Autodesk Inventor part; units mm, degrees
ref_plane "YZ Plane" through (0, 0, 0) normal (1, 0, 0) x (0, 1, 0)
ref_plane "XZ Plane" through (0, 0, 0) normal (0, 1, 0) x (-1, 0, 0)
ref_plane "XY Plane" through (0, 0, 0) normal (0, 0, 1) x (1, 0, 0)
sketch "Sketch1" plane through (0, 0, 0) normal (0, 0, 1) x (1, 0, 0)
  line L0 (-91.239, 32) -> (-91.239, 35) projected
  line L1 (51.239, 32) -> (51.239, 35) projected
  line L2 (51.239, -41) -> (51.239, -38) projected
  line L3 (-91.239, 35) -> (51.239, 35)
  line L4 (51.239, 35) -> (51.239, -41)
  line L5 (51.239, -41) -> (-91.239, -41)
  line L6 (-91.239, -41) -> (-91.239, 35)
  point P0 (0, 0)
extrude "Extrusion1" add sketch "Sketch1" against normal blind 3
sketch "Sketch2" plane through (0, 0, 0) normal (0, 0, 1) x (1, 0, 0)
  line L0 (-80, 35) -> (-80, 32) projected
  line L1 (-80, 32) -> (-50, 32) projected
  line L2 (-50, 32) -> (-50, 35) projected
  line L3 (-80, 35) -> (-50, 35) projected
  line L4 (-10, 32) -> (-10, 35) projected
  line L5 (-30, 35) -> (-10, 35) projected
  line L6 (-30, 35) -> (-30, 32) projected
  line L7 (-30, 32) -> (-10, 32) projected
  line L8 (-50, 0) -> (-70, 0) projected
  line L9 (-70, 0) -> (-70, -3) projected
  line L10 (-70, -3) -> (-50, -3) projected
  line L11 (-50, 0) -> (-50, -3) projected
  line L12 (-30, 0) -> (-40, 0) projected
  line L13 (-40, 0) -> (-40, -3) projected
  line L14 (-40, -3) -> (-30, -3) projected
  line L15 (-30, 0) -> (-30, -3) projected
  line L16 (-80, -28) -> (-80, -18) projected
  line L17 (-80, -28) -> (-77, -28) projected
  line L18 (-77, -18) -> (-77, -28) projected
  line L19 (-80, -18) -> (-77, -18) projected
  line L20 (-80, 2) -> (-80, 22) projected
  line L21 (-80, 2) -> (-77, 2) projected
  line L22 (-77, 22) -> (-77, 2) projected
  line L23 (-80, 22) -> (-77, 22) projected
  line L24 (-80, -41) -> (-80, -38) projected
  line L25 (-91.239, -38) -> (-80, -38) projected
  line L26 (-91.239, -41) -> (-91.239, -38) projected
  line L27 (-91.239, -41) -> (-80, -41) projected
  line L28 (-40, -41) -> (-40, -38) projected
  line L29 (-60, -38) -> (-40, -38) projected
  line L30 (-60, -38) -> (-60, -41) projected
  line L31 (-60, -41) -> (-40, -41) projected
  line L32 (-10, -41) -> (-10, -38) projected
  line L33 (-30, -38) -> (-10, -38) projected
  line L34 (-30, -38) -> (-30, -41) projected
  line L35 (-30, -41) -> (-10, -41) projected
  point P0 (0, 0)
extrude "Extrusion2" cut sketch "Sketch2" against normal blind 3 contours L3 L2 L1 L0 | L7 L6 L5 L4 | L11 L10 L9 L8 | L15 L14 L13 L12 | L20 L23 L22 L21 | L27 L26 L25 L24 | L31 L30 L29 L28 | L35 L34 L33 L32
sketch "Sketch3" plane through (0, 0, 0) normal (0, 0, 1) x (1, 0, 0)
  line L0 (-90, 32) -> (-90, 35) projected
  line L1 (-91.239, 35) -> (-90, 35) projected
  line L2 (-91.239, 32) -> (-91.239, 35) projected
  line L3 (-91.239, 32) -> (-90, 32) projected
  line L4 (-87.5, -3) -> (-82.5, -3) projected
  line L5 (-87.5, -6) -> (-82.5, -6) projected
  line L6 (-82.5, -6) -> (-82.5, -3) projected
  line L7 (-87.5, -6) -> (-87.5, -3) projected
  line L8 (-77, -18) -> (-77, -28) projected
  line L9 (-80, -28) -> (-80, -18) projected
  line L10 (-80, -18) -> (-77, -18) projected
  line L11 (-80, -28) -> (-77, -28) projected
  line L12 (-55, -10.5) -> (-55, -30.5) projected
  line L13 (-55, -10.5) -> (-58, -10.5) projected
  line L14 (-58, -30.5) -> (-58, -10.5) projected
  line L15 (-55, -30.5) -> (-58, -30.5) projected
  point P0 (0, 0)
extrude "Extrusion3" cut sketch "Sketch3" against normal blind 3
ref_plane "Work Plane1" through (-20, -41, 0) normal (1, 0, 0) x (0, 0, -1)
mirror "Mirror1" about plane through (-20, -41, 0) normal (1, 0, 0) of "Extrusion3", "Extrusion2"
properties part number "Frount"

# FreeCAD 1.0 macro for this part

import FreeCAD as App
import Part
import Sketcher
Q = App.Units.Quantity

doc = App.newDocument("Part")
body = doc.addObject("PartDesign::Body", "Body")

sketch1 = body.newObject("Sketcher::SketchObject", "Sketch")
sketch1.AttachmentSupport = (doc.getObject("XY_Plane"), [""])
sketch1.MapMode = "FlatFace"
sketch1.addGeometry(Part.LineSegment(App.Vector(-91.239, 35, 0), App.Vector(-91.239, -41, 0)), False)
sketch1.addGeometry(Part.LineSegment(App.Vector(-91.239, -41, 0), App.Vector(51.239, -41, 0)), False)
sketch1.addGeometry(Part.LineSegment(App.Vector(51.239, -41, 0), App.Vector(51.239, 35, 0)), False)
sketch1.addGeometry(Part.LineSegment(App.Vector(51.239, 35, 0), App.Vector(-91.239, 35, 0)), False)
sketch1.addConstraint(Sketcher.Constraint("Coincident", 0, 2, 1, 1))
sketch1.addConstraint(Sketcher.Constraint("Coincident", 1, 2, 2, 1))
sketch1.addConstraint(Sketcher.Constraint("Coincident", 2, 2, 3, 1))
sketch1.addConstraint(Sketcher.Constraint("Coincident", 3, 2, 0, 1))
sketch1.addConstraint(Sketcher.Constraint("Vertical", 0))
sketch1.addConstraint(Sketcher.Constraint("Horizontal", 1))
sketch1.addConstraint(Sketcher.Constraint("Vertical", 2))
sketch1.addConstraint(Sketcher.Constraint("Horizontal", 3))
sketch1.addConstraint(Sketcher.Constraint("DistanceY", 0, 2, 0, 1, Q("76 mm")))
sketch1.addConstraint(Sketcher.Constraint("DistanceY", 0, 2, -1, 1, Q("41 mm")))
sketch1.addConstraint(Sketcher.Constraint("DistanceX", 1, 1, 1, 2, Q("142.478 mm")))
sketch1.addConstraint(Sketcher.Constraint("DistanceX", 0, 2, -1, 1, Q("91.239 mm")))
pad1 = body.newObject("PartDesign::Pad", "Pad")
pad1.Profile = sketch1
pad1.Length = 3
pad1.Reversed = True

sketch2 = body.newObject("Sketcher::SketchObject", "Sketch001")
sketch2.AttachmentSupport = (doc.getObject("XY_Plane"), [""])
sketch2.MapMode = "FlatFace"
sketch2.addGeometry(Part.LineSegment(App.Vector(-50, 35, 0), App.Vector(-80, 35, 0)), False)
sketch2.addGeometry(Part.LineSegment(App.Vector(-80, 35, 0), App.Vector(-80, 32, 0)), False)
sketch2.addGeometry(Part.LineSegment(App.Vector(-80, 32, 0), App.Vector(-50, 32, 0)), False)
sketch2.addGeometry(Part.LineSegment(App.Vector(-50, 32, 0), App.Vector(-50, 35, 0)), False)
sketch2.addGeometry(Part.LineSegment(App.Vector(-30, 32, 0), App.Vector(-10, 32, 0)), False)
sketch2.addGeometry(Part.LineSegment(App.Vector(-10, 32, 0), App.Vector(-10, 35, 0)), False)
sketch2.addGeometry(Part.LineSegment(App.Vector(-10, 35, 0), App.Vector(-30, 35, 0)), False)
sketch2.addGeometry(Part.LineSegment(App.Vector(-30, 35, 0), App.Vector(-30, 32, 0)), False)
sketch2.addGeometry(Part.LineSegment(App.Vector(-50, -3, 0), App.Vector(-50, 0, 0)), False)
sketch2.addGeometry(Part.LineSegment(App.Vector(-50, 0, 0), App.Vector(-70, 0, 0)), False)
sketch2.addGeometry(Part.LineSegment(App.Vector(-70, 0, 0), App.Vector(-70, -3, 0)), False)
sketch2.addGeometry(Part.LineSegment(App.Vector(-70, -3, 0), App.Vector(-50, -3, 0)), False)
sketch2.addGeometry(Part.LineSegment(App.Vector(-30, -3, 0), App.Vector(-30, 0, 0)), False)
sketch2.addGeometry(Part.LineSegment(App.Vector(-30, 0, 0), App.Vector(-40, 0, 0)), False)
sketch2.addGeometry(Part.LineSegment(App.Vector(-40, 0, 0), App.Vector(-40, -3, 0)), False)
sketch2.addGeometry(Part.LineSegment(App.Vector(-40, -3, 0), App.Vector(-30, -3, 0)), False)
sketch2.addGeometry(Part.LineSegment(App.Vector(-80, 22, 0), App.Vector(-80, 2, 0)), False)
sketch2.addGeometry(Part.LineSegment(App.Vector(-80, 2, 0), App.Vector(-77, 2, 0)), False)
sketch2.addGeometry(Part.LineSegment(App.Vector(-77, 2, 0), App.Vector(-77, 22, 0)), False)
sketch2.addGeometry(Part.LineSegment(App.Vector(-77, 22, 0), App.Vector(-80, 22, 0)), False)
sketch2.addGeometry(Part.LineSegment(App.Vector(-91.239, -41, 0), App.Vector(-80, -41, 0)), False)
sketch2.addGeometry(Part.LineSegment(App.Vector(-80, -41, 0), App.Vector(-80, -38, 0)), False)
sketch2.addGeometry(Part.LineSegment(App.Vector(-80, -38, 0), App.Vector(-91.239, -38, 0)), False)
sketch2.addGeometry(Part.LineSegment(App.Vector(-91.239, -38, 0), App.Vector(-91.239, -41, 0)), False)
sketch2.addGeometry(Part.LineSegment(App.Vector(-60, -41, 0), App.Vector(-40, -41, 0)), False)
sketch2.addGeometry(Part.LineSegment(App.Vector(-40, -41, 0), App.Vector(-40, -38, 0)), False)
sketch2.addGeometry(Part.LineSegment(App.Vector(-40, -38, 0), App.Vector(-60, -38, 0)), False)
sketch2.addGeometry(Part.LineSegment(App.Vector(-60, -38, 0), App.Vector(-60, -41, 0)), False)
sketch2.addGeometry(Part.LineSegment(App.Vector(-30, -41, 0), App.Vector(-10, -41, 0)), False)
sketch2.addGeometry(Part.LineSegment(App.Vector(-10, -41, 0), App.Vector(-10, -38, 0)), False)
sketch2.addGeometry(Part.LineSegment(App.Vector(-10, -38, 0), App.Vector(-30, -38, 0)), False)
sketch2.addGeometry(Part.LineSegment(App.Vector(-30, -38, 0), App.Vector(-30, -41, 0)), False)
sketch2.addConstraint(Sketcher.Constraint("Coincident", 0, 2, 1, 1))
sketch2.addConstraint(Sketcher.Constraint("Coincident", 1, 2, 2, 1))
sketch2.addConstraint(Sketcher.Constraint("Coincident", 2, 2, 3, 1))
sketch2.addConstraint(Sketcher.Constraint("Coincident", 3, 2, 0, 1))
sketch2.addConstraint(Sketcher.Constraint("Coincident", 4, 2, 5, 1))
sketch2.addConstraint(Sketcher.Constraint("Coincident", 5, 2, 6, 1))
sketch2.addConstraint(Sketcher.Constraint("Coincident", 6, 2, 7, 1))
sketch2.addConstraint(Sketcher.Constraint("Coincident", 7, 2, 4, 1))
sketch2.addConstraint(Sketcher.Constraint("Coincident", 8, 2, 9, 1))
sketch2.addConstraint(Sketcher.Constraint("Coincident", 9, 2, 10, 1))
sketch2.addConstraint(Sketcher.Constraint("Coincident", 10, 2, 11, 1))
sketch2.addConstraint(Sketcher.Constraint("Coincident", 11, 2, 8, 1))
sketch2.addConstraint(Sketcher.Constraint("Coincident", 12, 2, 13, 1))
sketch2.addConstraint(Sketcher.Constraint("Coincident", 13, 2, 14, 1))
sketch2.addConstraint(Sketcher.Constraint("Coincident", 14, 2, 15, 1))
sketch2.addConstraint(Sketcher.Constraint("Coincident", 15, 2, 12, 1))
sketch2.addConstraint(Sketcher.Constraint("Coincident", 16, 2, 17, 1))
sketch2.addConstraint(Sketcher.Constraint("Coincident", 17, 2, 18, 1))
sketch2.addConstraint(Sketcher.Constraint("Coincident", 18, 2, 19, 1))
sketch2.addConstraint(Sketcher.Constraint("Coincident", 19, 2, 16, 1))
sketch2.addConstraint(Sketcher.Constraint("Coincident", 20, 2, 21, 1))
sketch2.addConstraint(Sketcher.Constraint("Coincident", 21, 2, 22, 1))
sketch2.addConstraint(Sketcher.Constraint("Coincident", 22, 2, 23, 1))
sketch2.addConstraint(Sketcher.Constraint("Coincident", 23, 2, 20, 1))
sketch2.addConstraint(Sketcher.Constraint("Coincident", 24, 2, 25, 1))
sketch2.addConstraint(Sketcher.Constraint("Coincident", 25, 2, 26, 1))
sketch2.addConstraint(Sketcher.Constraint("Coincident", 26, 2, 27, 1))
sketch2.addConstraint(Sketcher.Constraint("Coincident", 27, 2, 24, 1))
sketch2.addConstraint(Sketcher.Constraint("Coincident", 28, 2, 29, 1))
sketch2.addConstraint(Sketcher.Constraint("Coincident", 29, 2, 30, 1))
sketch2.addConstraint(Sketcher.Constraint("Coincident", 30, 2, 31, 1))
sketch2.addConstraint(Sketcher.Constraint("Coincident", 31, 2, 28, 1))
sketch2.addConstraint(Sketcher.Constraint("Horizontal", 0))
sketch2.addConstraint(Sketcher.Constraint("Vertical", 1))
sketch2.addConstraint(Sketcher.Constraint("Horizontal", 2))
sketch2.addConstraint(Sketcher.Constraint("Vertical", 3))
sketch2.addConstraint(Sketcher.Constraint("Horizontal", 4))
sketch2.addConstraint(Sketcher.Constraint("Vertical", 5))
sketch2.addConstraint(Sketcher.Constraint("Horizontal", 6))
sketch2.addConstraint(Sketcher.Constraint("Vertical", 7))
sketch2.addConstraint(Sketcher.Constraint("Vertical", 8))
sketch2.addConstraint(Sketcher.Constraint("Horizontal", 9))
sketch2.addConstraint(Sketcher.Constraint("Vertical", 10))
sketch2.addConstraint(Sketcher.Constraint("Horizontal", 11))
sketch2.addConstraint(Sketcher.Constraint("Vertical", 12))
sketch2.addConstraint(Sketcher.Constraint("Horizontal", 13))
sketch2.addConstraint(Sketcher.Constraint("Vertical", 14))
sketch2.addConstraint(Sketcher.Constraint("Horizontal", 15))
sketch2.addConstraint(Sketcher.Constraint("Vertical", 16))
sketch2.addConstraint(Sketcher.Constraint("Horizontal", 17))
sketch2.addConstraint(Sketcher.Constraint("Vertical", 18))
sketch2.addConstraint(Sketcher.Constraint("Horizontal", 19))
sketch2.addConstraint(Sketcher.Constraint("Horizontal", 20))
sketch2.addConstraint(Sketcher.Constraint("Vertical", 21))
sketch2.addConstraint(Sketcher.Constraint("Horizontal", 22))
sketch2.addConstraint(Sketcher.Constraint("Vertical", 23))
sketch2.addConstraint(Sketcher.Constraint("Horizontal", 24))
sketch2.addConstraint(Sketcher.Constraint("Vertical", 25))
sketch2.addConstraint(Sketcher.Constraint("Horizontal", 26))
sketch2.addConstraint(Sketcher.Constraint("Vertical", 27))
sketch2.addConstraint(Sketcher.Constraint("Horizontal", 28))
sketch2.addConstraint(Sketcher.Constraint("Vertical", 29))
sketch2.addConstraint(Sketcher.Constraint("Horizontal", 30))
sketch2.addConstraint(Sketcher.Constraint("Vertical", 31))
sketch2.addConstraint(Sketcher.Constraint("PointOnObject", 8, 2, -1))
sketch2.addConstraint(Sketcher.Constraint("PointOnObject", 12, 2, -1))
sketch2.addConstraint(Sketcher.Constraint("Horizontal", 2, 2, 4, 2))
sketch2.addConstraint(Sketcher.Constraint("Horizontal", 3, 2, 5, 2))
sketch2.addConstraint(Sketcher.Constraint("Horizontal", 11, 2, 14, 2))
sketch2.addConstraint(Sketcher.Constraint("Horizontal", 23, 2, 24, 2))
sketch2.addConstraint(Sketcher.Constraint("Horizontal", 22, 2, 25, 2))
sketch2.addConstraint(Sketcher.Constraint("Horizontal", 27, 2, 28, 2))
sketch2.addConstraint(Sketcher.Constraint("Horizontal", 26, 2, 29, 2))
sketch2.addConstraint(Sketcher.Constraint("Vertical", 3, 2, 8, 2))
sketch2.addConstraint(Sketcher.Constraint("Vertical", 7, 2, 12, 2))
sketch2.addConstraint(Sketcher.Constraint("Vertical", 1, 2, 16, 2))
sketch2.addConstraint(Sketcher.Constraint("Vertical", 19, 2, 20, 2))
sketch2.addConstraint(Sketcher.Constraint("Vertical", 14, 2, 24, 2))
sketch2.addConstraint(Sketcher.Constraint("Vertical", 5, 2, 28, 2))
sketch2.addConstraint(Sketcher.Constraint("Vertical", 15, 2, 30, 2))
sketch2.addConstraint(Sketcher.Constraint("Equal", 6, 9))
sketch2.addConstraint(Sketcher.Constraint("Equal", 11, 24))
sketch2.addConstraint(Sketcher.Constraint("Equal", 19, 1))
sketch2.addConstraint(Sketcher.Constraint("Equal", 7, 8))
sketch2.addConstraint(Sketcher.Constraint("Equal", 30, 16))
sketch2.addConstraint(Sketcher.Constraint("Equal", 14, 21))
sketch2.addConstraint(Sketcher.Constraint("DistanceX", 0, 2, 0, 1, Q("30 mm")))
sketch2.addConstraint(Sketcher.Constraint("DistanceX", 4, 1, 4, 2, Q("20 mm")))
sketch2.addConstraint(Sketcher.Constraint("DistanceX", 13, 2, 13, 1, Q("10 mm")))
sketch2.addConstraint(Sketcher.Constraint("DistanceX", 17, 1, 17, 2, Q("3 mm")))
sketch2.addConstraint(Sketcher.Constraint("DistanceX", 0, 2, -1, 1, Q("80 mm")))
sketch2.addConstraint(Sketcher.Constraint("DistanceY", -1, 1, 0, 2, Q("35 mm")))
sketch2.addConstraint(Sketcher.Constraint("DistanceX", 4, 2, -1, 1, Q("10 mm")))
sketch2.addConstraint(Sketcher.Constraint("DistanceY", -1, 1, 16, 2, Q("2 mm")))
sketch2.addConstraint(Sketcher.Constraint("DistanceY", 20, 2, -1, 1, Q("41 mm")))
sketch2.addConstraint(Sketcher.Constraint("DistanceX", 20, 1, 20, 2, Q("11.239 mm")))
pocket1 = body.newObject("PartDesign::Pocket", "Pocket")
pocket1.Profile = sketch2
pocket1.Length = 3

sketch3 = body.newObject("Sketcher::SketchObject", "Sketch002")
sketch3.AttachmentSupport = (doc.getObject("XY_Plane"), [""])
sketch3.MapMode = "FlatFace"
sketch3.addGeometry(Part.LineSegment(App.Vector(-91.239, 32, 0), App.Vector(-90, 32, 0)), False)
sketch3.addGeometry(Part.LineSegment(App.Vector(-90, 32, 0), App.Vector(-90, 35, 0)), False)
sketch3.addGeometry(Part.LineSegment(App.Vector(-90, 35, 0), App.Vector(-91.239, 35, 0)), False)
sketch3.addGeometry(Part.LineSegment(App.Vector(-91.239, 35, 0), App.Vector(-91.239, 32, 0)), False)
sketch3.addGeometry(Part.LineSegment(App.Vector(-82.5, -3, 0), App.Vector(-87.5, -3, 0)), False)
sketch3.addGeometry(Part.LineSegment(App.Vector(-87.5, -3, 0), App.Vector(-87.5, -6, 0)), False)
sketch3.addGeometry(Part.LineSegment(App.Vector(-87.5, -6, 0), App.Vector(-82.5, -6, 0)), False)
sketch3.addGeometry(Part.LineSegment(App.Vector(-82.5, -6, 0), App.Vector(-82.5, -3, 0)), False)
sketch3.addGeometry(Part.LineSegment(App.Vector(-77, -28, 0), App.Vector(-77, -18, 0)), False)
sketch3.addGeometry(Part.LineSegment(App.Vector(-77, -18, 0), App.Vector(-80, -18, 0)), False)
sketch3.addGeometry(Part.LineSegment(App.Vector(-80, -18, 0), App.Vector(-80, -28, 0)), False)
sketch3.addGeometry(Part.LineSegment(App.Vector(-80, -28, 0), App.Vector(-77, -28, 0)), False)
sketch3.addGeometry(Part.LineSegment(App.Vector(-55, -30.5, 0), App.Vector(-55, -10.5, 0)), False)
sketch3.addGeometry(Part.LineSegment(App.Vector(-55, -10.5, 0), App.Vector(-58, -10.5, 0)), False)
sketch3.addGeometry(Part.LineSegment(App.Vector(-58, -10.5, 0), App.Vector(-58, -30.5, 0)), False)
sketch3.addGeometry(Part.LineSegment(App.Vector(-58, -30.5, 0), App.Vector(-55, -30.5, 0)), False)
sketch3.addConstraint(Sketcher.Constraint("Coincident", 0, 2, 1, 1))
sketch3.addConstraint(Sketcher.Constraint("Coincident", 1, 2, 2, 1))
sketch3.addConstraint(Sketcher.Constraint("Coincident", 2, 2, 3, 1))
sketch3.addConstraint(Sketcher.Constraint("Coincident", 3, 2, 0, 1))
sketch3.addConstraint(Sketcher.Constraint("Coincident", 4, 2, 5, 1))
sketch3.addConstraint(Sketcher.Constraint("Coincident", 5, 2, 6, 1))
sketch3.addConstraint(Sketcher.Constraint("Coincident", 6, 2, 7, 1))
sketch3.addConstraint(Sketcher.Constraint("Coincident", 7, 2, 4, 1))
sketch3.addConstraint(Sketcher.Constraint("Coincident", 8, 2, 9, 1))
sketch3.addConstraint(Sketcher.Constraint("Coincident", 9, 2, 10, 1))
sketch3.addConstraint(Sketcher.Constraint("Coincident", 10, 2, 11, 1))
sketch3.addConstraint(Sketcher.Constraint("Coincident", 11, 2, 8, 1))
sketch3.addConstraint(Sketcher.Constraint("Coincident", 12, 2, 13, 1))
sketch3.addConstraint(Sketcher.Constraint("Coincident", 13, 2, 14, 1))
sketch3.addConstraint(Sketcher.Constraint("Coincident", 14, 2, 15, 1))
sketch3.addConstraint(Sketcher.Constraint("Coincident", 15, 2, 12, 1))
sketch3.addConstraint(Sketcher.Constraint("Horizontal", 0))
sketch3.addConstraint(Sketcher.Constraint("Vertical", 1))
sketch3.addConstraint(Sketcher.Constraint("Horizontal", 2))
sketch3.addConstraint(Sketcher.Constraint("Vertical", 3))
sketch3.addConstraint(Sketcher.Constraint("Horizontal", 4))
sketch3.addConstraint(Sketcher.Constraint("Vertical", 5))
sketch3.addConstraint(Sketcher.Constraint("Horizontal", 6))
sketch3.addConstraint(Sketcher.Constraint("Vertical", 7))
sketch3.addConstraint(Sketcher.Constraint("Vertical", 8))
sketch3.addConstraint(Sketcher.Constraint("Horizontal", 9))
sketch3.addConstraint(Sketcher.Constraint("Vertical", 10))
sketch3.addConstraint(Sketcher.Constraint("Horizontal", 11))
sketch3.addConstraint(Sketcher.Constraint("Vertical", 12))
sketch3.addConstraint(Sketcher.Constraint("Horizontal", 13))
sketch3.addConstraint(Sketcher.Constraint("Vertical", 14))
sketch3.addConstraint(Sketcher.Constraint("Horizontal", 15))
sketch3.addConstraint(Sketcher.Constraint("Equal", 11, 13))
sketch3.addConstraint(Sketcher.Constraint("Equal", 15, 1))
sketch3.addConstraint(Sketcher.Constraint("Equal", 3, 5))
sketch3.addConstraint(Sketcher.Constraint("DistanceX", 4, 2, 4, 1, Q("5 mm")))
sketch3.addConstraint(Sketcher.Constraint("DistanceX", 9, 2, 9, 1, Q("3 mm")))
sketch3.addConstraint(Sketcher.Constraint("DistanceY", 8, 1, 8, 2, Q("10 mm")))
sketch3.addConstraint(Sketcher.Constraint("DistanceY", 12, 1, 12, 2, Q("20 mm")))
sketch3.addConstraint(Sketcher.Constraint("DistanceX", 0, 2, -1, 1, Q("90 mm")))
sketch3.addConstraint(Sketcher.Constraint("DistanceY", -1, 1, 0, 2, Q("32 mm")))
sketch3.addConstraint(Sketcher.Constraint("DistanceY", 4, 2, -1, 1, Q("3 mm")))
sketch3.addConstraint(Sketcher.Constraint("DistanceX", 8, 2, -1, 1, Q("77 mm")))
sketch3.addConstraint(Sketcher.Constraint("DistanceY", 8, 2, -1, 1, Q("18 mm")))
sketch3.addConstraint(Sketcher.Constraint("DistanceX", 12, 2, -1, 1, Q("55 mm")))
sketch3.addConstraint(Sketcher.Constraint("DistanceX", 4, 2, -1, 1, Q("87.5 mm")))
sketch3.addConstraint(Sketcher.Constraint("DistanceY", 12, 2, -1, 1, Q("10.5 mm")))
sketch3.addConstraint(Sketcher.Constraint("DistanceX", 0, 1, 0, 2, Q("1.239 mm")))
pocket2 = body.newObject("PartDesign::Pocket", "Pocket001")
pocket2.Profile = sketch3
pocket2.Length = 3
doc.recompute()

datumplane = body.newObject("PartDesign::Plane", "DatumPlane")
datumplane.AttachmentSupport = (doc.getObject("YZ_Plane"), [""])
datumplane.MapMode = "FlatFace"
datumplane.AttachmentOffset = App.Placement(App.Vector(0, 0, -20), App.Rotation())
mirrored = body.newObject("PartDesign::Mirrored", "Mirrored")
mirrored.Originals = [pocket2, pocket1]
mirrored.MirrorPlane = (datumplane, [""])
body.Tip = mirrored

doc.recompute()
